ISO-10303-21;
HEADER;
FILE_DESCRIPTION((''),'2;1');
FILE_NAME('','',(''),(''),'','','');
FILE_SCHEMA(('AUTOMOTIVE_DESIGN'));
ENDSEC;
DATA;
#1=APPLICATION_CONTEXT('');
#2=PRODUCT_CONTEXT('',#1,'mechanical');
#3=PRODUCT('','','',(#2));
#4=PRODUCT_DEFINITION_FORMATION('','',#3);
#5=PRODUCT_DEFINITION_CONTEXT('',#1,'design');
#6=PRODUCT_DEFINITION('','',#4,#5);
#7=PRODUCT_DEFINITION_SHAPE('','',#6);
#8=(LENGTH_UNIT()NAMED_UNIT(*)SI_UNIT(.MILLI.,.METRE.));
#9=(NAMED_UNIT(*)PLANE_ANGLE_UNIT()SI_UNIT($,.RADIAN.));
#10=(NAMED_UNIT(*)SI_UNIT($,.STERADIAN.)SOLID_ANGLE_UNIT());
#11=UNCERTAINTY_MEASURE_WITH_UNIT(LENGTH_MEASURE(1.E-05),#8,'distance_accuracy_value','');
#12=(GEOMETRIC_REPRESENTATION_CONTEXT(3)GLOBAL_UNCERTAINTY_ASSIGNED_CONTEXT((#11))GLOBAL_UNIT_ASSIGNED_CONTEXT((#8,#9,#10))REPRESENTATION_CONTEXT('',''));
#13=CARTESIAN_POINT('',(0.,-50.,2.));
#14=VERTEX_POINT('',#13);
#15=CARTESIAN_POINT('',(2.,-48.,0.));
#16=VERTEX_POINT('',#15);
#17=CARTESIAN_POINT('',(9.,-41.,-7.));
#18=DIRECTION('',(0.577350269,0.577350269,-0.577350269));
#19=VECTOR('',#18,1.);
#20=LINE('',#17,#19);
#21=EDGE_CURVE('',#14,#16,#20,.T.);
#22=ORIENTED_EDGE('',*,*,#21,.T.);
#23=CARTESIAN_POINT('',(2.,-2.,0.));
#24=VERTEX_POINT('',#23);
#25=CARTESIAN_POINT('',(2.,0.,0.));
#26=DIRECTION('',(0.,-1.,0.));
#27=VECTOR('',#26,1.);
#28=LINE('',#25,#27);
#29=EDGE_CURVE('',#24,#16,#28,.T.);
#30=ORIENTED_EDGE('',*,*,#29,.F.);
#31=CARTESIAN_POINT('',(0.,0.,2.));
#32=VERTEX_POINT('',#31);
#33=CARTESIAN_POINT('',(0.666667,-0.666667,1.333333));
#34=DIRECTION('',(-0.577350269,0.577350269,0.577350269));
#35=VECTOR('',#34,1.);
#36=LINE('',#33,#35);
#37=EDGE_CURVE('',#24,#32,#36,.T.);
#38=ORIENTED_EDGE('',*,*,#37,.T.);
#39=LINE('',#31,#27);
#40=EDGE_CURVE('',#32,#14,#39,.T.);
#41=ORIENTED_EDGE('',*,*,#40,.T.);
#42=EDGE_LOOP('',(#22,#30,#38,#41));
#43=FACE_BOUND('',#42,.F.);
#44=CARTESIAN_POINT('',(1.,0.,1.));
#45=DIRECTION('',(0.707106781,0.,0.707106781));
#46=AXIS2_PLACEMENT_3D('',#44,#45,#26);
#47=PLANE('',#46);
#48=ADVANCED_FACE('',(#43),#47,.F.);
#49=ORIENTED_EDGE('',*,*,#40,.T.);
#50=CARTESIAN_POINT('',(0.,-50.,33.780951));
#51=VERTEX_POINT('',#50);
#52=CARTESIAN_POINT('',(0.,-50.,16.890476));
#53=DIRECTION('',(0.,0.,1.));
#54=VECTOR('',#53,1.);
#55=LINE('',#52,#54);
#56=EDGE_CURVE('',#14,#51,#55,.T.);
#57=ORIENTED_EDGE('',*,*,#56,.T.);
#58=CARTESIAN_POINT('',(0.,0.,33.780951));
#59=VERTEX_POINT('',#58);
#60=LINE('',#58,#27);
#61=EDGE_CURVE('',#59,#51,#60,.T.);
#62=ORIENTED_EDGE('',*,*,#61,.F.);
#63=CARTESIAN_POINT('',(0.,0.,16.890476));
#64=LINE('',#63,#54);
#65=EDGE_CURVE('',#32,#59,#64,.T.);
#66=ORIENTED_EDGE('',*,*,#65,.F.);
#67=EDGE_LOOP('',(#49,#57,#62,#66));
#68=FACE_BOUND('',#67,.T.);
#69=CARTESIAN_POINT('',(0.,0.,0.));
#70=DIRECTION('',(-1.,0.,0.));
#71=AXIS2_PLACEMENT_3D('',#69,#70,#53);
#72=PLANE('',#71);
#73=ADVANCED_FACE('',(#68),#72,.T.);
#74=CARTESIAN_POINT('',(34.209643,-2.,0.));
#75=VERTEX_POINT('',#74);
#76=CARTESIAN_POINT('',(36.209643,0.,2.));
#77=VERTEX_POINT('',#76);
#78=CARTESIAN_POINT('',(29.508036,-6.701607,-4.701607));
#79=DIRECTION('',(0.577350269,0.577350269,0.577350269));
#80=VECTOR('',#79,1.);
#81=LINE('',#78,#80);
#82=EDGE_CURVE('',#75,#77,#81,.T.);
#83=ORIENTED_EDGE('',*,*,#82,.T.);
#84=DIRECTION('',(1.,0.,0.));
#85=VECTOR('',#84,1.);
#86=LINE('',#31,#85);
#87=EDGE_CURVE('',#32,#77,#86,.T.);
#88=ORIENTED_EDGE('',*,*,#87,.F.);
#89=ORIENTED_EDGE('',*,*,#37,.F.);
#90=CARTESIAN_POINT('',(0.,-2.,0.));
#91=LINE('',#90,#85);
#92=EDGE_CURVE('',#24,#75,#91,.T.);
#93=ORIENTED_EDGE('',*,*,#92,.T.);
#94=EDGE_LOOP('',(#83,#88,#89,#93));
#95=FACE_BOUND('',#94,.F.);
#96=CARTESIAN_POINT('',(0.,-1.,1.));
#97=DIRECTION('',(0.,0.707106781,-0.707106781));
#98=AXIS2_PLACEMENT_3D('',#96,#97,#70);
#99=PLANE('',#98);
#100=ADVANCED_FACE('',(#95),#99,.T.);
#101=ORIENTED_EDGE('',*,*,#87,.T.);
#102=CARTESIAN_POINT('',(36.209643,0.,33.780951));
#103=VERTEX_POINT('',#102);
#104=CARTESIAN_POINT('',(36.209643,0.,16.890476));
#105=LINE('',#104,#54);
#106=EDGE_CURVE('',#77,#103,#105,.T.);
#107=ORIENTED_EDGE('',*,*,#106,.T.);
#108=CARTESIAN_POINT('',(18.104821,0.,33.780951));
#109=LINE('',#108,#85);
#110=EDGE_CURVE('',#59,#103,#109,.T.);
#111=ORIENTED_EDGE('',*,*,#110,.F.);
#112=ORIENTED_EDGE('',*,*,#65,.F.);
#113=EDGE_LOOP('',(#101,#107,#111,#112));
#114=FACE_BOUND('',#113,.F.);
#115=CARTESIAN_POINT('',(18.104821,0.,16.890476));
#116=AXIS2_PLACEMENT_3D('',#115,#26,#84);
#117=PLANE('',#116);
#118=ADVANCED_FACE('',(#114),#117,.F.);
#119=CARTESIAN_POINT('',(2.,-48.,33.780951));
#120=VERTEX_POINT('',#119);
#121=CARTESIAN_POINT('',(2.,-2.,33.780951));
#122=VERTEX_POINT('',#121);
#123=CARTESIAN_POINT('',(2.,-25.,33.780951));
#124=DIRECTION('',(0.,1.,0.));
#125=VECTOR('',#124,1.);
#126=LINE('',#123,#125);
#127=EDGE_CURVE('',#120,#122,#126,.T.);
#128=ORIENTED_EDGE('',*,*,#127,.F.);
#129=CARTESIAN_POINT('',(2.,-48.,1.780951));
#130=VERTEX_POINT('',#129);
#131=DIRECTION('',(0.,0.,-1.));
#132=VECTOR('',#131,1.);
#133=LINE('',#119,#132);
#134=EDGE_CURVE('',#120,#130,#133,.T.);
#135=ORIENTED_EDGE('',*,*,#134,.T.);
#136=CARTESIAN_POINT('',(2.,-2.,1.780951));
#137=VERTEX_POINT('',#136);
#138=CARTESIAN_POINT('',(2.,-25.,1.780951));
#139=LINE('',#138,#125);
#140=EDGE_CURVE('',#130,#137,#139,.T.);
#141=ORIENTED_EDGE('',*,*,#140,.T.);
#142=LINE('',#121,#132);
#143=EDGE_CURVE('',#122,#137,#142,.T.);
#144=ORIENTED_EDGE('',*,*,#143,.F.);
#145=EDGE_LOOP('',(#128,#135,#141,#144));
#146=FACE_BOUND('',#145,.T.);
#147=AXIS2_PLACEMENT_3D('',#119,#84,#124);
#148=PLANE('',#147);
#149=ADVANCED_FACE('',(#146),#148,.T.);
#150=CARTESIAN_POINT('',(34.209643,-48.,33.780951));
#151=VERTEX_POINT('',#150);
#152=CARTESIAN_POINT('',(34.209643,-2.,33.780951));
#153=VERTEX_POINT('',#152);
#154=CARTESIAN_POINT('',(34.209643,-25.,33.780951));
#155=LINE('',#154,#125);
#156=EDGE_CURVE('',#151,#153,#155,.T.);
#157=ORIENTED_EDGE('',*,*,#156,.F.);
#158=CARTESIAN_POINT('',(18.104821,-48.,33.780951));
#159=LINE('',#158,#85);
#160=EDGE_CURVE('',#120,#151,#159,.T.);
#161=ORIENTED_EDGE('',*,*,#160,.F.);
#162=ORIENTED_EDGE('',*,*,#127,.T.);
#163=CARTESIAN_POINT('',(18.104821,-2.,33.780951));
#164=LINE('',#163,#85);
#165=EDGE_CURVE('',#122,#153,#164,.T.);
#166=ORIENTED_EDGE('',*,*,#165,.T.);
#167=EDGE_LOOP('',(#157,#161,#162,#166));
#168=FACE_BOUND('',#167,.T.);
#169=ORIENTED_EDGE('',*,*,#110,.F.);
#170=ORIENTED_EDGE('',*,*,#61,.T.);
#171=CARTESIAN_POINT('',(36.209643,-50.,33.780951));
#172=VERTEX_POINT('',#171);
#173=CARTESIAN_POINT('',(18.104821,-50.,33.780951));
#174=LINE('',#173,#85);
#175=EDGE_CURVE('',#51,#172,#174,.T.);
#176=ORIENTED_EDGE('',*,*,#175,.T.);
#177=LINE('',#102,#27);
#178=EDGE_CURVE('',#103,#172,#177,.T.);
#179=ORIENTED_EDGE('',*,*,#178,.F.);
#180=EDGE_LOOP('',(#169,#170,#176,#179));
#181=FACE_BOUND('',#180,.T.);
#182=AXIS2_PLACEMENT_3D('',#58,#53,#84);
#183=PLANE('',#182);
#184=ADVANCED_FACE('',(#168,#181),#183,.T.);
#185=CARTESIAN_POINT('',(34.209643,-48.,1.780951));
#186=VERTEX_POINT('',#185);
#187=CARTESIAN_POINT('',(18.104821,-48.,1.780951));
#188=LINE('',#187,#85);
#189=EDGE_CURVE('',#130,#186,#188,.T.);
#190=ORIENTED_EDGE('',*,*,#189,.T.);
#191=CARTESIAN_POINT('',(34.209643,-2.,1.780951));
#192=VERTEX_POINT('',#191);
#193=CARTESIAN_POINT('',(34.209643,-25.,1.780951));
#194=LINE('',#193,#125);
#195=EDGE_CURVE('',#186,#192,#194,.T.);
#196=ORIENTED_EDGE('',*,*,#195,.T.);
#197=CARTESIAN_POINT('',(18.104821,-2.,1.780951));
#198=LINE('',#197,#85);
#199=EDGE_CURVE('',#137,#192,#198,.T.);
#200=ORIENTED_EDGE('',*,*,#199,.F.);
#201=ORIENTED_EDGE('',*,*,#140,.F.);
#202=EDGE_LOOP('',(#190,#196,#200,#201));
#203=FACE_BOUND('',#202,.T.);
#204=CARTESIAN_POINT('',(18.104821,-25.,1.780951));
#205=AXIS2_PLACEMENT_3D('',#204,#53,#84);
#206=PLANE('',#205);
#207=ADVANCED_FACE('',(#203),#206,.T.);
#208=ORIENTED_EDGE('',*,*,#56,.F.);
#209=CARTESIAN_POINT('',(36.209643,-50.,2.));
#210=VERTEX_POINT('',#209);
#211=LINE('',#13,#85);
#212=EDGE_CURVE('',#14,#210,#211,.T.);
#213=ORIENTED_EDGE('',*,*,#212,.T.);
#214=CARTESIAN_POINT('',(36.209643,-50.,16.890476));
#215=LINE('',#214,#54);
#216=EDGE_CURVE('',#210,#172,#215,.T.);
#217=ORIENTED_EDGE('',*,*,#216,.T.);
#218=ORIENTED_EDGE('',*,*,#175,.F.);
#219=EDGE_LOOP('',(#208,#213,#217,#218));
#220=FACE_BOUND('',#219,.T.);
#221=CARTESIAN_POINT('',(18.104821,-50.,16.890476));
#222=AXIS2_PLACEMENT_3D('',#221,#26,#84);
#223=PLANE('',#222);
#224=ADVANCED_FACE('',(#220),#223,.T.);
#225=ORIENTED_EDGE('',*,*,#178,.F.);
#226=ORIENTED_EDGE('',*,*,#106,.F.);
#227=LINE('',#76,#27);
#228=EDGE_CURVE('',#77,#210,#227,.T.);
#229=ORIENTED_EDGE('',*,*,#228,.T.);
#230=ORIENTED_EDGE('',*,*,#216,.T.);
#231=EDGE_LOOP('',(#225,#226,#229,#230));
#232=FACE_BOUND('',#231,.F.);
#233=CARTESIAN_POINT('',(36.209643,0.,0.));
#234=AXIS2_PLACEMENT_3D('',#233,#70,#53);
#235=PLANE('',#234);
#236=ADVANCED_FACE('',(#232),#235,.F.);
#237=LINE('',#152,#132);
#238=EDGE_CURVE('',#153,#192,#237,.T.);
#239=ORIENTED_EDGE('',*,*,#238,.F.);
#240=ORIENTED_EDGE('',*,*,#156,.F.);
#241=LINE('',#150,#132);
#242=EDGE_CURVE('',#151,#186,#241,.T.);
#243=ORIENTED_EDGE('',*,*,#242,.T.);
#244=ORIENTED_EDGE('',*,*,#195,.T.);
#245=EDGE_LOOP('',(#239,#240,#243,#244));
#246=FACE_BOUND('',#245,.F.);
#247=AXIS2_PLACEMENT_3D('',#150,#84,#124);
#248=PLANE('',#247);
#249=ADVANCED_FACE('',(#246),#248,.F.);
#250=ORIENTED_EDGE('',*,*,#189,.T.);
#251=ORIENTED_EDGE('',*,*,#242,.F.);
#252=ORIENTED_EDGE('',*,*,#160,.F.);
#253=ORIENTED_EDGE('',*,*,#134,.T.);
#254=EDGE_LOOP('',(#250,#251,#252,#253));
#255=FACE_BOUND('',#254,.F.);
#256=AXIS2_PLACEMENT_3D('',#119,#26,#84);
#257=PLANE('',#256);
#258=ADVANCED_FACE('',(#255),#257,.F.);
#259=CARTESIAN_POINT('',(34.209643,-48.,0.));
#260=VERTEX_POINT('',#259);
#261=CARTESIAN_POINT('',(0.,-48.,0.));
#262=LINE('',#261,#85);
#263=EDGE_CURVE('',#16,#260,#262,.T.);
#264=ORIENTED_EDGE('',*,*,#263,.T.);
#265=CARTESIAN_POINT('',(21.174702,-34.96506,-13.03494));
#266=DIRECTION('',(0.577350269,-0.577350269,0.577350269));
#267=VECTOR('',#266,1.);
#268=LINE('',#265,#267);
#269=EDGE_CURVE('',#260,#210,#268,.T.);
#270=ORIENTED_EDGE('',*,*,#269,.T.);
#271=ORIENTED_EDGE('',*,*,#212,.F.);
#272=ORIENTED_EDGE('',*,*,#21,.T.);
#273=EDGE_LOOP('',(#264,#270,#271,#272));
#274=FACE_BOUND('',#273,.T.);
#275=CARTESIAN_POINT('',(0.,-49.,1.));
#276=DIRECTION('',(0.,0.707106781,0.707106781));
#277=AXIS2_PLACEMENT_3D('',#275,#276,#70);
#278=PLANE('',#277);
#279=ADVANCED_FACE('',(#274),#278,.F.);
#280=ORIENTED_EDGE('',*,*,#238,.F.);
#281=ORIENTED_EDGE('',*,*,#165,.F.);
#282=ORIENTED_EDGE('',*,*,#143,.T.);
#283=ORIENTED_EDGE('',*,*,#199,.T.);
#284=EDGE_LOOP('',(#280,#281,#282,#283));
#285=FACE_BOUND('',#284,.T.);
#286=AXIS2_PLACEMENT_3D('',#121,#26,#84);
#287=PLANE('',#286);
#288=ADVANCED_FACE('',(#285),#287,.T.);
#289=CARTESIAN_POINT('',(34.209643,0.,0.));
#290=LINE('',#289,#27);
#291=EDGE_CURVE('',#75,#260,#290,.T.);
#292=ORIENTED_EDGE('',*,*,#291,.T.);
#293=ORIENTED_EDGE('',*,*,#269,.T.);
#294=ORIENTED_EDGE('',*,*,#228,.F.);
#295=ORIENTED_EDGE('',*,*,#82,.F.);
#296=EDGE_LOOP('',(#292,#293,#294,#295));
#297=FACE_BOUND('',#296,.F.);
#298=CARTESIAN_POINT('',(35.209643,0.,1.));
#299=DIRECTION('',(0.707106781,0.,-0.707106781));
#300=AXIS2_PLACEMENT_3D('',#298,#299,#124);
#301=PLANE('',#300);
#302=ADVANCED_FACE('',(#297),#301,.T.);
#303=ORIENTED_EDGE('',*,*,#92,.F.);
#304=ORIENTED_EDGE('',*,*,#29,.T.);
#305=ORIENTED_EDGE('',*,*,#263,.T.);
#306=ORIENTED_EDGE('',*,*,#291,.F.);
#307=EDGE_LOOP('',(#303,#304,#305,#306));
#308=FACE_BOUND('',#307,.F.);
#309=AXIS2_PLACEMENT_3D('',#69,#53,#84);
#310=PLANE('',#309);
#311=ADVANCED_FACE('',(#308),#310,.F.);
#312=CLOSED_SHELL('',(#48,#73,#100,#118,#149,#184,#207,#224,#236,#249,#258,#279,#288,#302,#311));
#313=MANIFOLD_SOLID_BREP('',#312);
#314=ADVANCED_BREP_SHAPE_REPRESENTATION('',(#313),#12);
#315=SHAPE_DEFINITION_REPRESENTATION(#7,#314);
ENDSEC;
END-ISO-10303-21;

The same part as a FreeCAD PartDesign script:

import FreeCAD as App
import Part
import Sketcher
from FreeCAD import Vector


def edges_at(feature, points):
    """Names of the edges that pass closest to the given points."""
    edges = feature.Shape.Edges
    near = lambda p: min(range(len(edges)), key=lambda i: edges[i].distToShape(Part.Vertex(*p))[0])
    return sorted({f"Edge{near(p) + 1}" for p in points})


def add_polygon(sketch, points):
    """Adds a closed chain of lines whose ends are joined by coincident constraints."""
    first, n = sketch.GeometryCount, len(points)
    for a, b in zip(points, points[1:] + points[:1]):
        sketch.addGeometry(Part.LineSegment(App.Vector(*a, 0), App.Vector(*b, 0)), False)
    for i in range(n):
        sketch.addConstraint(Sketcher.Constraint("Coincident", first + i, 2, first + (i + 1) % n, 1))

doc = App.newDocument("Part")
body = doc.addObject("PartDesign::Body", "Body")

# Sketch on XZ plane
sketch1 = body.newObject("Sketcher::SketchObject", "Sketch")
sketch1.AttachmentSupport = (doc.getObject("XZ_Plane"), [""])
sketch1.MapMode = "FlatFace"
add_polygon(sketch1, [(0, 34), (0, 0), (36, 0), (36, 34)])  # lines 0-3
sketch1.addConstraint(Sketcher.Constraint("Vertical", 0))
sketch1.addConstraint(Sketcher.Constraint("Horizontal", 1))
sketch1.addConstraint(Sketcher.Constraint("Vertical", 2))
sketch1.addConstraint(Sketcher.Constraint("Horizontal", 3))
sketch1.addConstraint(Sketcher.Constraint("Coincident", 0, 2, -1, 1))
sketch1.addConstraint(Sketcher.Constraint("DistanceY", 0, 2, 0, 1, 33.780951))
sketch1.addConstraint(Sketcher.Constraint("DistanceX", 1, 1, 1, 2, 36.209643))
pad1 = body.newObject("PartDesign::Pad", "Pad")
pad1.Profile = sketch1
pad1.Length = 50

# Sketch on XY plane
sketch2 = body.newObject("Sketcher::SketchObject", "Sketch001")
sketch2.AttachmentSupport = (doc.getObject("XY_Plane"), [""])
sketch2.MapMode = "FlatFace"
sketch2.AttachmentOffset = App.Placement(Vector(0, 0, 33.780951), App.Rotation())
add_polygon(sketch2, [(2, -2), (2, -48), (34, -48), (34, -2)])  # lines 0-3
sketch2.addConstraint(Sketcher.Constraint("Vertical", 0))
sketch2.addConstraint(Sketcher.Constraint("Horizontal", 1))
sketch2.addConstraint(Sketcher.Constraint("Vertical", 2))
sketch2.addConstraint(Sketcher.Constraint("Horizontal", 3))
sketch2.addConstraint(Sketcher.Constraint("DistanceY", 0, 2, 0, 1, 46.0))
sketch2.addConstraint(Sketcher.Constraint("DistanceX", -1, 1, 0, 2, 2.0))
sketch2.addConstraint(Sketcher.Constraint("DistanceY", 0, 2, -1, 1, 48.0))
sketch2.addConstraint(Sketcher.Constraint("DistanceX", 1, 1, 1, 2, 32.209643))
pocket1 = body.newObject("PartDesign::Pocket", "Pocket")
pocket1.Profile = sketch2
pocket1.Length = 32
doc.recompute()

chamfer = body.newObject("PartDesign::Chamfer", "Chamfer")
chamfer.Base = (pocket1, edges_at(pocket1, [
    (18.105, 0, 0),
    (0, -25, 0),
    (36.21, -25, 0),
    (18.105, -50, 0),
]))
chamfer.Size = 2

doc.recompute()
